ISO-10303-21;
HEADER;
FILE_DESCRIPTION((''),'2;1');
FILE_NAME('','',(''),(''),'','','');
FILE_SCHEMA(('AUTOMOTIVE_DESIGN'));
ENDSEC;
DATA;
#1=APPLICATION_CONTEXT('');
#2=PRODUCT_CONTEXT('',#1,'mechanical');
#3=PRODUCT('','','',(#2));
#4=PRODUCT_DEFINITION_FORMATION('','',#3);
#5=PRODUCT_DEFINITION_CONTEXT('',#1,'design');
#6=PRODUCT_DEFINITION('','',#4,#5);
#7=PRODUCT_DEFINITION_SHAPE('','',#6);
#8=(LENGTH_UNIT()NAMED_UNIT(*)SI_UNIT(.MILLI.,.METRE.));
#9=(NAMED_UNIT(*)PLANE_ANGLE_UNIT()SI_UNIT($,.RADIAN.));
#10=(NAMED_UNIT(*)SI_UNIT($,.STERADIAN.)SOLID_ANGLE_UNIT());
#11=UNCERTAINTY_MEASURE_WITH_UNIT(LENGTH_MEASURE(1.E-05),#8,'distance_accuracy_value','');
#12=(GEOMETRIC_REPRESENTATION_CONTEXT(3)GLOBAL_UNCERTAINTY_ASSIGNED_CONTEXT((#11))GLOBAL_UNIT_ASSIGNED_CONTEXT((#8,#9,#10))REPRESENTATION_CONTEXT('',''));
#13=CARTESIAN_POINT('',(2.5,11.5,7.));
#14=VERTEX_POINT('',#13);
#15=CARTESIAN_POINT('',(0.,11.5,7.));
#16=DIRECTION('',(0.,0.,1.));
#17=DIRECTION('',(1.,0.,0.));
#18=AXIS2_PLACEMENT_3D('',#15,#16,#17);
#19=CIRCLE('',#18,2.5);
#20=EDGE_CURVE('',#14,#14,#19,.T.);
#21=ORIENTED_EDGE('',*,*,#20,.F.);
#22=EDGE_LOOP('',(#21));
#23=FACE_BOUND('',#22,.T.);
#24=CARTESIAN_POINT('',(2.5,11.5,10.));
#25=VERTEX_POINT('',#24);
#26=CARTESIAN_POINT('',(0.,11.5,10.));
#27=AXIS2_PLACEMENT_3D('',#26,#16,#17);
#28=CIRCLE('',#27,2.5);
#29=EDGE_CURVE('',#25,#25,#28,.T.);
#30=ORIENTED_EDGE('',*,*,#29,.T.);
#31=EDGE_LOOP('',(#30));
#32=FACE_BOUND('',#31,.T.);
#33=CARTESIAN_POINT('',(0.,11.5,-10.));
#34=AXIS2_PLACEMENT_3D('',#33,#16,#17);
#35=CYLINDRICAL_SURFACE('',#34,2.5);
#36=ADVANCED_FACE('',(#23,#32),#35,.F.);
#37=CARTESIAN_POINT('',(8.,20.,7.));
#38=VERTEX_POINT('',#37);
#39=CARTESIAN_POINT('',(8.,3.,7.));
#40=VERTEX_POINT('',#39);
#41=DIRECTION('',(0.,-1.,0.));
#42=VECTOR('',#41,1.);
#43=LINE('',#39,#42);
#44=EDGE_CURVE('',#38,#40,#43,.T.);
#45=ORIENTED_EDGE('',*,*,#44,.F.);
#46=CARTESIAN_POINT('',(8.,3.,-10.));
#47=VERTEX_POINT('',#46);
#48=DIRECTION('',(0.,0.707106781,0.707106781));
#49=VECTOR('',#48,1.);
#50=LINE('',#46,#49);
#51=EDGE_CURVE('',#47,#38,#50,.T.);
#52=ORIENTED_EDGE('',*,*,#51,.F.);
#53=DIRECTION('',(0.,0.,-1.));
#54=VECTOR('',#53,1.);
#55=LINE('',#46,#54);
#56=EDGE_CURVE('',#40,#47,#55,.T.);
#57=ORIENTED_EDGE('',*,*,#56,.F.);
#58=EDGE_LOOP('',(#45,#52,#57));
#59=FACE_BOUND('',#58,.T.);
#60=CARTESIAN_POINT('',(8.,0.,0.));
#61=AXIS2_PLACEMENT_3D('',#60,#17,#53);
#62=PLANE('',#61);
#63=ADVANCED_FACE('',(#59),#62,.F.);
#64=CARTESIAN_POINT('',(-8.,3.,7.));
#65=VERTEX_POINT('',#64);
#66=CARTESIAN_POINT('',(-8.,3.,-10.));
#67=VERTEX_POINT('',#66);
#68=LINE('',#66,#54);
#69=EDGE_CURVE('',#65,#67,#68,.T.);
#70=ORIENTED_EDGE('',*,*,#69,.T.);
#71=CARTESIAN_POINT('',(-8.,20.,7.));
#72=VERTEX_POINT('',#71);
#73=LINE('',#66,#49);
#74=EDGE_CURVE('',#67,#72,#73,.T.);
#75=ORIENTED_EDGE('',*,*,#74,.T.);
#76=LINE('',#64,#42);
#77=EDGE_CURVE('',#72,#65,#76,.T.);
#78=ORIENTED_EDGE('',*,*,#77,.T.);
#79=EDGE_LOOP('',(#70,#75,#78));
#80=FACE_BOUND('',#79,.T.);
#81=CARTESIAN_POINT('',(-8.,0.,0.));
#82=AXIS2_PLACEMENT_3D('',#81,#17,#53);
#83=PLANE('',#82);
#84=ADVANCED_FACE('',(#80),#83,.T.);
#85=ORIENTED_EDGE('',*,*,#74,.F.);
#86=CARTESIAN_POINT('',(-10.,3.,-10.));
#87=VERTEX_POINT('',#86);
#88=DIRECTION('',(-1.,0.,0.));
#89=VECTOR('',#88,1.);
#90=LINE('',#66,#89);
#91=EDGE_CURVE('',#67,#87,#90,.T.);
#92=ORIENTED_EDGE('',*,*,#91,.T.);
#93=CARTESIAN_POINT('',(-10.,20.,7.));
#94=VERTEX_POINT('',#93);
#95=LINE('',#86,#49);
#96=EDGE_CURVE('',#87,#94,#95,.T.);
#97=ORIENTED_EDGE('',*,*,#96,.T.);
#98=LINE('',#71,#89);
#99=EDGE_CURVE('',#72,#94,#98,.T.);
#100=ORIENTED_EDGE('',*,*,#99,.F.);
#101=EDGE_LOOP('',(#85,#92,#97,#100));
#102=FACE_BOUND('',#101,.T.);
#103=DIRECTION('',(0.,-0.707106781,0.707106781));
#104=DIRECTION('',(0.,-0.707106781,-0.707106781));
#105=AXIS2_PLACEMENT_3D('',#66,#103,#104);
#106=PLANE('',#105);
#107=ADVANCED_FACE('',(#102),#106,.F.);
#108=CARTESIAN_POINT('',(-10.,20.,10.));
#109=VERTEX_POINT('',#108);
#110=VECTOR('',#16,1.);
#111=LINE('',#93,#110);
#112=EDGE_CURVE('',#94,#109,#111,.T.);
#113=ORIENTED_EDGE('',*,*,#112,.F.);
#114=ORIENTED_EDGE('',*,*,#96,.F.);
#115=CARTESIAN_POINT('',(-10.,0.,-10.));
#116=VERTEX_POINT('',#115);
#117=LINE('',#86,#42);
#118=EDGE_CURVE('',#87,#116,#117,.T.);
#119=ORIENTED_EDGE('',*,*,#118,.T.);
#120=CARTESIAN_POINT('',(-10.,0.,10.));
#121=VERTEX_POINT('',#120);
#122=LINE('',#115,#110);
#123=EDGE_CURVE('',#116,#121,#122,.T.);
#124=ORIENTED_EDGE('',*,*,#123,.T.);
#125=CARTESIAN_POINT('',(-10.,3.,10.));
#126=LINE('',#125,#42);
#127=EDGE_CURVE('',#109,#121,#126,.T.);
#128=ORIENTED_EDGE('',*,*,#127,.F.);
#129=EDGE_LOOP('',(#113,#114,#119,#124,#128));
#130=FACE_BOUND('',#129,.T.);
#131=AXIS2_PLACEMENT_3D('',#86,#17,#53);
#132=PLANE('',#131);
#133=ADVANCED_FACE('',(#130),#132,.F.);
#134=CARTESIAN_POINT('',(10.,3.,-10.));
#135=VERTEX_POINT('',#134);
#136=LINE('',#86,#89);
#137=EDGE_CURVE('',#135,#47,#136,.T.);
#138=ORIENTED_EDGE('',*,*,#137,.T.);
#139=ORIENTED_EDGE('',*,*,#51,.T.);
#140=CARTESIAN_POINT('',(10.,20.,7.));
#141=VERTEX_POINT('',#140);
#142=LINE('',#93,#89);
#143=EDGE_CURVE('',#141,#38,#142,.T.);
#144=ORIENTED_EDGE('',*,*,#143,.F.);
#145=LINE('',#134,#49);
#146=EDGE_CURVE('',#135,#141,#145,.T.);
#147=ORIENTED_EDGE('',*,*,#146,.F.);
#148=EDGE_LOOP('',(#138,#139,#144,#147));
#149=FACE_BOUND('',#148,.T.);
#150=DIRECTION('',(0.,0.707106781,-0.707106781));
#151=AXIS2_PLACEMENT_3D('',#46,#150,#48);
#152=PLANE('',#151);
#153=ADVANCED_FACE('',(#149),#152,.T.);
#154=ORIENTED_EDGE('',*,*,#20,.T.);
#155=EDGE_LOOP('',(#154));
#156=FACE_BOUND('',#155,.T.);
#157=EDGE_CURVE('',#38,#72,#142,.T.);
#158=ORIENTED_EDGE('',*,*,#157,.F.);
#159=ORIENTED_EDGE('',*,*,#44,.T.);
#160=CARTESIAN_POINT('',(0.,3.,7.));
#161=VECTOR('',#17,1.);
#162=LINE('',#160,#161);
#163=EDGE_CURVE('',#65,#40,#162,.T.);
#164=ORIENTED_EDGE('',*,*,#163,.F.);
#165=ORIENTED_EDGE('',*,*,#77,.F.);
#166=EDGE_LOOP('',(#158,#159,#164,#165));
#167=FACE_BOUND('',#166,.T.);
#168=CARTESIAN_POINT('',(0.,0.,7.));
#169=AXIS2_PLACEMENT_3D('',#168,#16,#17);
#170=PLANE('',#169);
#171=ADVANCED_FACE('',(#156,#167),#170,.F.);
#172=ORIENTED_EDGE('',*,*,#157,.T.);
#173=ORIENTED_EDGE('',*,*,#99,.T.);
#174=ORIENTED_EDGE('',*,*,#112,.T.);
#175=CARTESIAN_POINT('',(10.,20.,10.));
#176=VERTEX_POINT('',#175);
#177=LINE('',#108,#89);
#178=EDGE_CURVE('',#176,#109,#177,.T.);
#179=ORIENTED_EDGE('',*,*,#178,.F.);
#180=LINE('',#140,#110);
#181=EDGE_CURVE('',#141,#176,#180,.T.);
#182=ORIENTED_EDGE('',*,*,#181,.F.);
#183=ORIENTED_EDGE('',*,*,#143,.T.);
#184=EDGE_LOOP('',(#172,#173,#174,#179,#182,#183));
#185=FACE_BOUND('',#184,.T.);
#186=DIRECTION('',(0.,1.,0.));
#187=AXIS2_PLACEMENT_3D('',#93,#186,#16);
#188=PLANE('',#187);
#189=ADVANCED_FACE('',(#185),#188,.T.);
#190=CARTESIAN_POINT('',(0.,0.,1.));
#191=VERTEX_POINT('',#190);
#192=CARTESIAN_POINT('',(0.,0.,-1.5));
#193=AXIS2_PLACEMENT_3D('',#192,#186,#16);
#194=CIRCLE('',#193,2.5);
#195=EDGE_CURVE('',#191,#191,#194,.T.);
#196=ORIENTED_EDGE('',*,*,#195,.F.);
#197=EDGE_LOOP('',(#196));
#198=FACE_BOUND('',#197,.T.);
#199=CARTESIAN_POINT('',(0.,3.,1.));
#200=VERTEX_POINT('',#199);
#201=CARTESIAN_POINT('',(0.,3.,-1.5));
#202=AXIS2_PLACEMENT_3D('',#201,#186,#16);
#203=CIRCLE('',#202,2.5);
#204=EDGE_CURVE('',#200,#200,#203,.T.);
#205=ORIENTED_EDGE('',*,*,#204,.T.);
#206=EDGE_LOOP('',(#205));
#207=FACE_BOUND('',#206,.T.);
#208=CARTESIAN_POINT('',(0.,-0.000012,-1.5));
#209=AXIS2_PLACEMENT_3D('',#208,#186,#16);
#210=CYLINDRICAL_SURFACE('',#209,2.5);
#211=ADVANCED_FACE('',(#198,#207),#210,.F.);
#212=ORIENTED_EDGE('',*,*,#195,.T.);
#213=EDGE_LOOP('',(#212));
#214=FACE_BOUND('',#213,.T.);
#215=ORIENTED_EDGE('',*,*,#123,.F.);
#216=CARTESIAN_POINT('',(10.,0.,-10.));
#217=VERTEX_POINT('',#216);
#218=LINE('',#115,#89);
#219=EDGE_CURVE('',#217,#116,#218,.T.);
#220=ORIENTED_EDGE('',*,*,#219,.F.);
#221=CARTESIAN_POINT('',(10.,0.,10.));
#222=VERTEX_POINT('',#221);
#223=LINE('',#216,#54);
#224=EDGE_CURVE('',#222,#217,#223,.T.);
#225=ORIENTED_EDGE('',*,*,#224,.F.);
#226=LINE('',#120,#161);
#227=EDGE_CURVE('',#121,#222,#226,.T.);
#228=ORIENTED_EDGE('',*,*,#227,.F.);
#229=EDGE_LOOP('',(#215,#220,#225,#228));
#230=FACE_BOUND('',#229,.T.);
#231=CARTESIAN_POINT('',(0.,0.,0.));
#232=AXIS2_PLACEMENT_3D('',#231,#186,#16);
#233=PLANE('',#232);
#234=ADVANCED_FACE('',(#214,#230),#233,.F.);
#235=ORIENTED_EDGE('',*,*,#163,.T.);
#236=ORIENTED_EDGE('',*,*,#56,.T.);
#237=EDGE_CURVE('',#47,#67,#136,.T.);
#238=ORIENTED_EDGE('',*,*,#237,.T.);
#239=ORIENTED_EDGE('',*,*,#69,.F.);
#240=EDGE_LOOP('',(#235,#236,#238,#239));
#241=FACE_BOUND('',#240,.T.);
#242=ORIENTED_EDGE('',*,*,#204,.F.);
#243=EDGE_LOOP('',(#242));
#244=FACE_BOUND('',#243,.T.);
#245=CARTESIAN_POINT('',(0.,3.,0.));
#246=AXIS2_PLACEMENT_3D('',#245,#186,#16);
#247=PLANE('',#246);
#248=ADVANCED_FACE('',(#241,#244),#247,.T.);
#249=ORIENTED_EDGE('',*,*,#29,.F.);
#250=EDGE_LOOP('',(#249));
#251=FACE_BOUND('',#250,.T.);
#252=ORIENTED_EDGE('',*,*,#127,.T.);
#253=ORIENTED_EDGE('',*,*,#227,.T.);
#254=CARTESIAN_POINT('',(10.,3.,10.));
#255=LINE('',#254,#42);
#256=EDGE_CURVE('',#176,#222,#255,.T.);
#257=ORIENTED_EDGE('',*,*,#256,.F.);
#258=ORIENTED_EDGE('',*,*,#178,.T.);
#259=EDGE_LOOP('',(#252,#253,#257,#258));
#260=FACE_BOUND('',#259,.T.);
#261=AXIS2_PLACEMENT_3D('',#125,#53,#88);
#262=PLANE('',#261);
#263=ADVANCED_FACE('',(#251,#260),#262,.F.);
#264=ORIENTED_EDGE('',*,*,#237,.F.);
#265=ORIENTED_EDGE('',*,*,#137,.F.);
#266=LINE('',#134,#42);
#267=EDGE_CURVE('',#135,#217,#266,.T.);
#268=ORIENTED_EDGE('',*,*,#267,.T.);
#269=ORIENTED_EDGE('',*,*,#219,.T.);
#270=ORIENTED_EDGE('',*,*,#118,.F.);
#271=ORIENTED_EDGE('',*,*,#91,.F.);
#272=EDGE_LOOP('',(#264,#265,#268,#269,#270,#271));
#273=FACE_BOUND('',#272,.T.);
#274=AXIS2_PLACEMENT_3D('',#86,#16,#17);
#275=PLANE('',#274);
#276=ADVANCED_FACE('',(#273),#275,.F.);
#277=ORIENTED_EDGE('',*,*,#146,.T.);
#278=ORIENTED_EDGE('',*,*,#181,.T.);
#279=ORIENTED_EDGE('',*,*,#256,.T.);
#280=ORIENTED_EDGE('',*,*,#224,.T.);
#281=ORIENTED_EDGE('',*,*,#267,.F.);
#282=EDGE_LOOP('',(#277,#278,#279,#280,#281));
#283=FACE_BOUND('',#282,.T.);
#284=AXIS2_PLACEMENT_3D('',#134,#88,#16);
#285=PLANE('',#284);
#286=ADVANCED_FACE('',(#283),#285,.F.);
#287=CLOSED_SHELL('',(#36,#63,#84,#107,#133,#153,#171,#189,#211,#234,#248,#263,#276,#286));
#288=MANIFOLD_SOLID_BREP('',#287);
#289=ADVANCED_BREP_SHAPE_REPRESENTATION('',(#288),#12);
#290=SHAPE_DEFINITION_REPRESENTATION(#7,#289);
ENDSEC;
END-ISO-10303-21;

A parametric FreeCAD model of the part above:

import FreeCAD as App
import Part
import Sketcher

V = App.Vector


def add_polygon(sketch, points):
    """Adds a closed chain of lines whose ends are joined by coincident constraints."""
    first, n = sketch.GeometryCount, len(points)
    for a, b in zip(points, points[1:] + points[:1]):
        sketch.addGeometry(Part.LineSegment(App.Vector(*a, 0), App.Vector(*b, 0)), False)
    for i in range(n):
        sketch.addConstraint(Sketcher.Constraint("Coincident", first + i, 2, first + (i + 1) % n, 1))

doc = App.newDocument("Part")
params = doc.addObject("Spreadsheet::Sheet", "Params")
for row, (alias, value) in enumerate([
    ("sketch1_width", "20 mm"),
    ("pad1_length", "3 mm"),
    ("sketch2_width", "20 mm"),
    ("pad2_length", "3 mm"),
    ("sketch3_width", "17 mm"),
    ("pad3_length", "2 mm"),
    ("sketch4_width", "17 mm"),
    ("pad4_length", "2 mm"),
    ("sketch5_diameter", "5 mm"),
    ("sketch6_diameter", "5 mm"),
], start=1):
    params.set(f"A{row}", alias)
    params.set(f"B{row}", "=" + value)
    params.setAlias(f"B{row}", alias)

body = doc.addObject("PartDesign::Body", "Body")

# Sketch on XZ plane
sketch1 = doc.addObject("Sketcher::SketchObject", "Sketch")
body.addObject(sketch1)
sketch1.AttachmentSupport = (doc.XZ_Plane, [""])
sketch1.MapMode = "FlatFace"
add_polygon(sketch1, [(-10, -10), (-10, 10), (10, 10), (10, -10)])  # lines 0-3
sketch1.addConstraint(Sketcher.Constraint("Vertical", 0))
sketch1.addConstraint(Sketcher.Constraint("Horizontal", 1))
sketch1.addConstraint(Sketcher.Constraint("Vertical", 2))
sketch1.addConstraint(Sketcher.Constraint("Horizontal", 3))
sketch1.addConstraint(Sketcher.Constraint("Symmetric", 0, 2, 2, 2, -1, 1))
sketch1.addConstraint(Sketcher.Constraint("Equal", 3, 0))
sketch1.addConstraint(Sketcher.Constraint("DistanceX", 1, 1, 1, 2, 20.0))
sketch1.setExpression("Constraints[10]", "Params.sketch1_width")
pad1 = doc.addObject("PartDesign::Pad", "Pad")
body.addObject(pad1)
pad1.Profile = sketch1
pad1.setExpression("Length", "Params.pad1_length")
pad1.Reversed = True

# Sketch on XY plane
sketch2 = doc.addObject("Sketcher::SketchObject", "Sketch001")
body.addObject(sketch2)
sketch2.AttachmentSupport = (doc.XY_Plane, [""])
sketch2.MapMode = "FlatFace"
sketch2.AttachmentOffset = App.Placement(V(0, 0, 10), App.Rotation())
add_polygon(sketch2, [(-10, 20), (-10, 0), (10, 0), (10, 20)])  # lines 0-3
sketch2.addConstraint(Sketcher.Constraint("Vertical", 0))
sketch2.addConstraint(Sketcher.Constraint("Horizontal", 1))
sketch2.addConstraint(Sketcher.Constraint("Vertical", 2))
sketch2.addConstraint(Sketcher.Constraint("Horizontal", 3))
sketch2.addConstraint(Sketcher.Constraint("Symmetric", 0, 2, 1, 2, -1, 1))
sketch2.addConstraint(Sketcher.Constraint("Equal", 3, 0))
sketch2.addConstraint(Sketcher.Constraint("DistanceX", 1, 1, 1, 2, 20.0))
sketch2.setExpression("Constraints[10]", "Params.sketch2_width")
pad2 = doc.addObject("PartDesign::Pad", "Pad001")
body.addObject(pad2)
pad2.Profile = sketch2
pad2.setExpression("Length", "Params.pad2_length")
pad2.Reversed = True

# Sketch on YZ plane
sketch3 = doc.addObject("Sketcher::SketchObject", "Sketch002")
body.addObject(sketch3)
sketch3.AttachmentSupport = (doc.YZ_Plane, [""])
sketch3.MapMode = "FlatFace"
sketch3.AttachmentOffset = App.Placement(V(0, 0, 10), App.Rotation())
add_polygon(sketch3, [(3, -10), (20, 7), (3, 7)])  # lines 0-2
sketch3.addConstraint(Sketcher.Constraint("Horizontal", 1))
sketch3.addConstraint(Sketcher.Constraint("Vertical", 2))
sketch3.addConstraint(Sketcher.Constraint("Equal", 1, 2))
sketch3.addConstraint(Sketcher.Constraint("DistanceX", 1, 2, 1, 1, 17.0))
sketch3.addConstraint(Sketcher.Constraint("DistanceX", -1, 1, 0, 2, 20.0))
sketch3.addConstraint(Sketcher.Constraint("DistanceY", -1, 1, 0, 2, 7.0))
sketch3.setExpression("Constraints[6]", "Params.sketch3_width")
pad3 = doc.addObject("PartDesign::Pad", "Pad002")
body.addObject(pad3)
pad3.Profile = sketch3
pad3.setExpression("Length", "Params.pad3_length")
pad3.Reversed = True

# Sketch on YZ plane
sketch4 = doc.addObject("Sketcher::SketchObject", "Sketch003")
body.addObject(sketch4)
sketch4.AttachmentSupport = (doc.YZ_Plane, [""])
sketch4.MapMode = "FlatFace"
sketch4.AttachmentOffset = App.Placement(V(0, 0, -10), App.Rotation())
add_polygon(sketch4, [(3, -10), (20, 7), (3, 7)])  # lines 0-2
sketch4.addConstraint(Sketcher.Constraint("Horizontal", 1))
sketch4.addConstraint(Sketcher.Constraint("Vertical", 2))
sketch4.addConstraint(Sketcher.Constraint("Equal", 1, 2))
sketch4.addConstraint(Sketcher.Constraint("DistanceX", 1, 2, 1, 1, 17.0))
sketch4.addConstraint(Sketcher.Constraint("DistanceX", -1, 1, 0, 2, 20.0))
sketch4.addConstraint(Sketcher.Constraint("DistanceY", -1, 1, 0, 2, 7.0))
sketch4.setExpression("Constraints[6]", "Params.sketch4_width")
pad4 = doc.addObject("PartDesign::Pad", "Pad003")
body.addObject(pad4)
pad4.Profile = sketch4
pad4.setExpression("Length", "Params.pad4_length")

# Sketch on XZ plane
sketch5 = doc.addObject("Sketcher::SketchObject", "Sketch004")
body.addObject(sketch5)
sketch5.AttachmentSupport = (doc.XZ_Plane, [""])
sketch5.MapMode = "FlatFace"
sketch5.addGeometry(Part.Circle(V(0, -1.5, 0), V(0, 0, 1), 2.5), False)
sketch5.addConstraint(Sketcher.Constraint("PointOnObject", 0, 3, -2))
sketch5.addConstraint(Sketcher.Constraint("Diameter", 0, 5.0))
sketch5.addConstraint(Sketcher.Constraint("DistanceY", 0, 3, -1, 1, 1.5))
sketch5.setExpression("Constraints[1]", "Params.sketch5_diameter")
pocket1 = doc.addObject("PartDesign::Pocket", "Pocket")
body.addObject(pocket1)
pocket1.Profile = sketch5
pocket1.Type = "ThroughAll"
pocket1.Midplane = True

# Sketch on XY plane
sketch6 = doc.addObject("Sketcher::SketchObject", "Sketch005")
body.addObject(sketch6)
sketch6.AttachmentSupport = (doc.XY_Plane, [""])
sketch6.MapMode = "FlatFace"
sketch6.addGeometry(Part.Circle(V(0, 11.5, 0), V(0, 0, 1), 2.5), False)
sketch6.addConstraint(Sketcher.Constraint("PointOnObject", 0, 3, -2))
sketch6.addConstraint(Sketcher.Constraint("Diameter", 0, 5.0))
sketch6.addConstraint(Sketcher.Constraint("DistanceY", -1, 1, 0, 3, 11.5))
sketch6.setExpression("Constraints[1]", "Params.sketch6_diameter")
pocket2 = doc.addObject("PartDesign::Pocket", "Pocket001")
body.addObject(pocket2)
pocket2.Profile = sketch6
pocket2.Type = "ThroughAll"
pocket2.Midplane = True

doc.recompute()
